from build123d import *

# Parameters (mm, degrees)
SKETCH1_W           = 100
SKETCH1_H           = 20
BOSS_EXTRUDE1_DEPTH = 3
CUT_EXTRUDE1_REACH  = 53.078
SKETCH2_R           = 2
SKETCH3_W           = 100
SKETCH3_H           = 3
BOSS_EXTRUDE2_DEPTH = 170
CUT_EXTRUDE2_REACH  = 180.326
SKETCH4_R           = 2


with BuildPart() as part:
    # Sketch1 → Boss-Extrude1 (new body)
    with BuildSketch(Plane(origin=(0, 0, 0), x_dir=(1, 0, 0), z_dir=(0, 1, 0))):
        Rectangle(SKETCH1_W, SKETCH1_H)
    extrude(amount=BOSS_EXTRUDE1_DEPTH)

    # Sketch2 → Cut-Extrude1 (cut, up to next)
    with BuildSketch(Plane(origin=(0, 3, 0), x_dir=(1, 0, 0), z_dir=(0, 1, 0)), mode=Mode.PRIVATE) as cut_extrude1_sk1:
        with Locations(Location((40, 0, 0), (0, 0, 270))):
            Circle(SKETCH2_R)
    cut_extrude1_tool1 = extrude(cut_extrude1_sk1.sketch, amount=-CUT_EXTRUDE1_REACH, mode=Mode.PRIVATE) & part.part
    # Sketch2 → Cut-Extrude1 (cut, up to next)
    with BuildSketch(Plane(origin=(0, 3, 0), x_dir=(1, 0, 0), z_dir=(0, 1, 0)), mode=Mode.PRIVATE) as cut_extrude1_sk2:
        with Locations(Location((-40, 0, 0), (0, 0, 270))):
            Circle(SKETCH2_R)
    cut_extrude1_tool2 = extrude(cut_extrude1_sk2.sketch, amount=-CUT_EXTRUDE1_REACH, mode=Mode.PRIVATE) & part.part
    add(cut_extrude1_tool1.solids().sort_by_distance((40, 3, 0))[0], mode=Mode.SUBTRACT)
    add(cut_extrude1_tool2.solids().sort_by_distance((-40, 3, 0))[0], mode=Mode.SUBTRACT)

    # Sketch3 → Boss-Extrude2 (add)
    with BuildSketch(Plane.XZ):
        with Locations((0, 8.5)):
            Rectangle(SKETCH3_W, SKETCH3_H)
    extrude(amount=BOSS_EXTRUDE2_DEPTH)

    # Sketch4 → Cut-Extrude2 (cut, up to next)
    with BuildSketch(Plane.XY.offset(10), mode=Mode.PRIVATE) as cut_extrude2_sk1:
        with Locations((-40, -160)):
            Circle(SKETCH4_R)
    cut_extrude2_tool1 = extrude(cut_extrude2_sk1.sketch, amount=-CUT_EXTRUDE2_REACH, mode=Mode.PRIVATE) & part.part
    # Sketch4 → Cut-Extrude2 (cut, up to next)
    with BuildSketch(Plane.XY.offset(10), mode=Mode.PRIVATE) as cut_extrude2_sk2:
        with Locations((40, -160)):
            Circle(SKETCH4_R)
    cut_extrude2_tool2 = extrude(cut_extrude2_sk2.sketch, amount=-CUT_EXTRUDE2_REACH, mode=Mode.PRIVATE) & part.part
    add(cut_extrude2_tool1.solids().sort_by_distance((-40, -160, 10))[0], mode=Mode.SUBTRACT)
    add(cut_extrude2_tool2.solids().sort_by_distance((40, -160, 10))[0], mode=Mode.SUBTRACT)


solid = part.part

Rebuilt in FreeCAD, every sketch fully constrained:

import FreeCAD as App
import Part
import Sketcher
from FreeCAD import Vector
Q = App.Units.Quantity


def add_polygon(sketch, points):
    """Adds a closed chain of lines whose ends are joined by coincident constraints."""
    first, n = sketch.GeometryCount, len(points)
    for a, b in zip(points, points[1:] + points[:1]):
        sketch.addGeometry(Part.LineSegment(App.Vector(*a, 0), App.Vector(*b, 0)), False)
    for i in range(n):
        sketch.addConstraint(Sketcher.Constraint("Coincident", first + i, 2, first + (i + 1) % n, 1))

doc = App.newDocument("Part")
body = doc.addObject("PartDesign::Body", "Body")

# Sketch on XZ plane
sketch1 = doc.addObject("Sketcher::SketchObject", "Sketch")
body.addObject(sketch1)
sketch1.AttachmentSupport = (doc.XZ_Plane, [""])
sketch1.MapMode = "FlatFace"
add_polygon(sketch1, [(-50, -10), (-50, 10), (50, 10), (50, -10)])  # lines 0-3
sketch1.addConstraint([
    Sketcher.Constraint("Vertical", 0),
    Sketcher.Constraint("Horizontal", 1),
    Sketcher.Constraint("Vertical", 2),
    Sketcher.Constraint("Horizontal", 3),
    Sketcher.Constraint("Symmetric", 0, 2, 2, 2, -1, 1),
    Sketcher.Constraint("DistanceX", 1, 1, 1, 2, Q("100 mm")),
    Sketcher.Constraint("DistanceY", 0, 1, 0, 2, Q("20 mm")),
])
pad1 = doc.addObject("PartDesign::Pad", "Pad")
body.addObject(pad1)
pad1.Profile = sketch1
pad1.Length = 3
pad1.Reversed = True

# Sketch on XZ plane
sketch2 = doc.addObject("Sketcher::SketchObject", "Sketch001")
body.addObject(sketch2)
sketch2.AttachmentSupport = (doc.XZ_Plane, [""])
sketch2.MapMode = "FlatFace"
sketch2.AttachmentOffset = App.Placement(Vector(0, 0, -3), App.Rotation())
sketch2.addGeometry(Part.Circle(Vector(40, 0, 0), Vector(0, 0, 1), 2), False)
sketch2.addConstraint([
    Sketcher.Constraint("PointOnObject", 0, 3, -1),
    Sketcher.Constraint("Diameter", 0, Q("4 mm")),
    Sketcher.Constraint("DistanceX", -1, 1, 0, 3, Q("40 mm")),
])
pocket1 = doc.addObject("PartDesign::Pocket", "Pocket")
body.addObject(pocket1)
pocket1.Profile = sketch2
pocket1.Type = "UpToFirst"
pocket1.Reversed = True

# Sketch on XZ plane
sketch3 = doc.addObject("Sketcher::SketchObject", "Sketch002")
body.addObject(sketch3)
sketch3.AttachmentSupport = (doc.XZ_Plane, [""])
sketch3.MapMode = "FlatFace"
sketch3.AttachmentOffset = App.Placement(Vector(0, 0, -3), App.Rotation())
sketch3.addGeometry(Part.Circle(Vector(-40, 0, 0), Vector(0, 0, 1), 2), False)
sketch3.addConstraint([
    Sketcher.Constraint("PointOnObject", 0, 3, -1),
    Sketcher.Constraint("Diameter", 0, Q("4 mm")),
    Sketcher.Constraint("DistanceX", 0, 3, -1, 1, Q("40 mm")),
])
pocket2 = doc.addObject("PartDesign::Pocket", "Pocket001")
body.addObject(pocket2)
pocket2.Profile = sketch3
pocket2.Type = "UpToFirst"
pocket2.Reversed = True

# Sketch on XZ plane
sketch4 = doc.addObject("Sketcher::SketchObject", "Sketch003")
body.addObject(sketch4)
sketch4.AttachmentSupport = (doc.XZ_Plane, [""])
sketch4.MapMode = "FlatFace"
add_polygon(sketch4, [(-50, 10), (-50, 7), (50, 7), (50, 10)])  # lines 0-3
sketch4.addConstraint([
    Sketcher.Constraint("Vertical", 0),
    Sketcher.Constraint("Horizontal", 1),
    Sketcher.Constraint("Vertical", 2),
    Sketcher.Constraint("Horizontal", 3),
    Sketcher.Constraint("DistanceX", 1, 1, 1, 2, Q("100 mm")),
    Sketcher.Constraint("DistanceY", 0, 2, 0, 1, Q("3 mm")),
    Sketcher.Constraint("DistanceX", 0, 2, -1, 1, Q("50 mm")),
    Sketcher.Constraint("DistanceY", -1, 1, 0, 2, Q("7 mm")),
])
pad2 = doc.addObject("PartDesign::Pad", "Pad001")
body.addObject(pad2)
pad2.Profile = sketch4
pad2.Length = 170

# Sketch on XY plane
sketch5 = doc.addObject("Sketcher::SketchObject", "Sketch004")
body.addObject(sketch5)
sketch5.AttachmentSupport = (doc.XY_Plane, [""])
sketch5.MapMode = "FlatFace"
sketch5.AttachmentOffset = App.Placement(Vector(0, 0, 10), App.Rotation())
sketch5.addGeometry(Part.Circle(Vector(-40, -160, 0), Vector(0, 0, 1), 2), False)
sketch5.addConstraint([
    Sketcher.Constraint("Diameter", 0, Q("4 mm")),
    Sketcher.Constraint("DistanceX", 0, 3, -1, 1, Q("40 mm")),
    Sketcher.Constraint("DistanceY", 0, 3, -1, 1, Q("160 mm")),
])
pocket3 = doc.addObject("PartDesign::Pocket", "Pocket002")
body.addObject(pocket3)
pocket3.Profile = sketch5
pocket3.Type = "UpToFirst"

# Sketch on XY plane
sketch6 = doc.addObject("Sketcher::SketchObject", "Sketch005")
body.addObject(sketch6)
sketch6.AttachmentSupport = (doc.XY_Plane, [""])
sketch6.MapMode = "FlatFace"
sketch6.AttachmentOffset = App.Placement(Vector(0, 0, 10), App.Rotation())
sketch6.addGeometry(Part.Circle(Vector(40, -160, 0), Vector(0, 0, 1), 2), False)
sketch6.addConstraint([
    Sketcher.Constraint("Diameter", 0, Q("4 mm")),
    Sketcher.Constraint("DistanceX", -1, 1, 0, 3, Q("40 mm")),
    Sketcher.Constraint("DistanceY", 0, 3, -1, 1, Q("160 mm")),
])
pocket4 = doc.addObject("PartDesign::Pocket", "Pocket003")
body.addObject(pocket4)
pocket4.Profile = sketch6
pocket4.Type = "UpToFirst"

doc.recompute()
